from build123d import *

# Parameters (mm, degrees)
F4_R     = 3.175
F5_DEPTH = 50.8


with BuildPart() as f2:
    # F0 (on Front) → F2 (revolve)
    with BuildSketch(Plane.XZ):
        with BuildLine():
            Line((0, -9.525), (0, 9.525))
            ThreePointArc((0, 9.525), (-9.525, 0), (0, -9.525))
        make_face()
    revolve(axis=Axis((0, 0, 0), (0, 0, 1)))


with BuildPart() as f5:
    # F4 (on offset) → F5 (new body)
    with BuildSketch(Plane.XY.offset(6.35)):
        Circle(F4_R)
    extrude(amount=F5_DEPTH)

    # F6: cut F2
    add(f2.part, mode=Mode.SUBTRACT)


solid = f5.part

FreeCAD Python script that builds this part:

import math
import FreeCAD as App
import Part
import Sketcher

V = App.Vector
Q = App.Units.Quantity

doc = App.newDocument("Part")
body = doc.addObject("PartDesign::Body", "Body")

sketch1 = body.newObject("Sketcher::SketchObject", "Sketch")
sketch1.AttachmentSupport = (doc.getObject("XZ_Plane"), [""])
sketch1.MapMode = "FlatFace"
sketch1.addGeometry([
    Part.LineSegment(V(0, -9.525, 0), V(0, 9.525, 0)),
    Part.ArcOfCircle(Part.Circle(V(0, 0, 0), V(0, 0, 1), 9.525), math.radians(90), math.radians(270)),
], False)
sketch1.addConstraint([
    Sketcher.Constraint("Coincident", 0, 1, 1, 2),
    Sketcher.Constraint("Coincident", 1, 1, 0, 2),
    Sketcher.Constraint("Vertical", 0),
    Sketcher.Constraint("Coincident", 1, 3, -1, 1),
    Sketcher.Constraint("PointOnObject", 0, 1, -2),
    Sketcher.Constraint("Radius", 1, Q("0.375 in")),
])
revolution = body.newObject("PartDesign::Revolution", "Revolution")
revolution.Profile = sketch1
revolution.ReferenceAxis = (sketch1, ["V_Axis"])
revolution.Angle = 360
body2 = doc.addObject("PartDesign::Body", "Body001")

sketch2 = body2.newObject("Sketcher::SketchObject", "Sketch001")
sketch2.AttachmentSupport = (doc.getObject("XY_Plane001"), [""])
sketch2.MapMode = "FlatFace"
sketch2.AttachmentOffset = App.Placement(V(0, 0, 0.25 * 25.4), App.Rotation())
sketch2.addGeometry(Part.Circle(V(0, 0, 0), V(0, 0, 1), 3.175), False)
sketch2.addConstraint([
    Sketcher.Constraint("Coincident", 0, 3, -1, 1),
    Sketcher.Constraint("Diameter", 0, Q("0.25 in")),
])
pad1 = body2.newObject("PartDesign::Pad", "Pad")
pad1.Profile = sketch2
pad1.Length = Q("2 in")
doc.recompute()

boolean = body2.newObject("PartDesign::Boolean", "Boolean")
boolean.Type = "Cut"
boolean.addObjects([body])

doc.recompute()
